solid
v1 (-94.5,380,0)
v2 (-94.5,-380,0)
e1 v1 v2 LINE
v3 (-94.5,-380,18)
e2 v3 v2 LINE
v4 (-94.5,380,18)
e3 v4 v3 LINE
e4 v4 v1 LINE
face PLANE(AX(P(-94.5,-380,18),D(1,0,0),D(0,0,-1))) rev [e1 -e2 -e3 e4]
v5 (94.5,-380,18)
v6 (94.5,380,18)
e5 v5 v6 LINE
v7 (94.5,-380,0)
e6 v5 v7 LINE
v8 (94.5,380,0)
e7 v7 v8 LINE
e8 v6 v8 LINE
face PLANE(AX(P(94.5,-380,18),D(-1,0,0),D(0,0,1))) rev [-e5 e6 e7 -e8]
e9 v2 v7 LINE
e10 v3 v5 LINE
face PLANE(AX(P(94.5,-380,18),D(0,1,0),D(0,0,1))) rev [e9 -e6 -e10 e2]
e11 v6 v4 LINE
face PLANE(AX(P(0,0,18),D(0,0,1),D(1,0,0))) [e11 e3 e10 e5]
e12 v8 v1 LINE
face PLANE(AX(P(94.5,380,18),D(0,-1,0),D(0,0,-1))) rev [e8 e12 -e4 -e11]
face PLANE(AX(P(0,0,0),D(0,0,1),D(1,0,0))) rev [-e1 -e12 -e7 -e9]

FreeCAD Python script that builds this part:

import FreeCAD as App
import Part
import Sketcher

doc = App.newDocument("Part")
body = doc.addObject("PartDesign::Body", "Body")

# Sketch on XY plane
sketch1 = body.newObject("Sketcher::SketchObject", "Sketch")
sketch1.AttachmentSupport = (doc.getObject("XY_Plane"), [""])
sketch1.MapMode = "FlatFace"
sketch1.addGeometry(Part.LineSegment(App.Vector(-94, 380, 0), App.Vector(-94, -380, 0)), False)
sketch1.addGeometry(Part.LineSegment(App.Vector(-94, -380, 0), App.Vector(94, -380, 0)), False)
sketch1.addGeometry(Part.LineSegment(App.Vector(94, -380, 0), App.Vector(94, 380, 0)), False)
sketch1.addGeometry(Part.LineSegment(App.Vector(94, 380, 0), App.Vector(-94, 380, 0)), False)
sketch1.addConstraint(Sketcher.Constraint("Coincident", 0, 2, 1, 1))
sketch1.addConstraint(Sketcher.Constraint("Coincident", 1, 2, 2, 1))
sketch1.addConstraint(Sketcher.Constraint("Coincident", 2, 2, 3, 1))
sketch1.addConstraint(Sketcher.Constraint("Coincident", 3, 2, 0, 1))
sketch1.addConstraint(Sketcher.Constraint("Vertical", 0))
sketch1.addConstraint(Sketcher.Constraint("Horizontal", 1))
sketch1.addConstraint(Sketcher.Constraint("Vertical", 2))
sketch1.addConstraint(Sketcher.Constraint("Horizontal", 3))
sketch1.addConstraint(Sketcher.Constraint("Symmetric", 0, 2, 2, 2, -1, 1))
sketch1.addConstraint(Sketcher.Constraint("DistanceX", 1, 1, 1, 2, 189.0))
sketch1.addConstraint(Sketcher.Constraint("DistanceY", 0, 2, 0, 1, 760.0))
pad1 = body.newObject("PartDesign::Pad", "Pad")
pad1.Profile = sketch1
pad1.Length = 18

doc.recompute()
